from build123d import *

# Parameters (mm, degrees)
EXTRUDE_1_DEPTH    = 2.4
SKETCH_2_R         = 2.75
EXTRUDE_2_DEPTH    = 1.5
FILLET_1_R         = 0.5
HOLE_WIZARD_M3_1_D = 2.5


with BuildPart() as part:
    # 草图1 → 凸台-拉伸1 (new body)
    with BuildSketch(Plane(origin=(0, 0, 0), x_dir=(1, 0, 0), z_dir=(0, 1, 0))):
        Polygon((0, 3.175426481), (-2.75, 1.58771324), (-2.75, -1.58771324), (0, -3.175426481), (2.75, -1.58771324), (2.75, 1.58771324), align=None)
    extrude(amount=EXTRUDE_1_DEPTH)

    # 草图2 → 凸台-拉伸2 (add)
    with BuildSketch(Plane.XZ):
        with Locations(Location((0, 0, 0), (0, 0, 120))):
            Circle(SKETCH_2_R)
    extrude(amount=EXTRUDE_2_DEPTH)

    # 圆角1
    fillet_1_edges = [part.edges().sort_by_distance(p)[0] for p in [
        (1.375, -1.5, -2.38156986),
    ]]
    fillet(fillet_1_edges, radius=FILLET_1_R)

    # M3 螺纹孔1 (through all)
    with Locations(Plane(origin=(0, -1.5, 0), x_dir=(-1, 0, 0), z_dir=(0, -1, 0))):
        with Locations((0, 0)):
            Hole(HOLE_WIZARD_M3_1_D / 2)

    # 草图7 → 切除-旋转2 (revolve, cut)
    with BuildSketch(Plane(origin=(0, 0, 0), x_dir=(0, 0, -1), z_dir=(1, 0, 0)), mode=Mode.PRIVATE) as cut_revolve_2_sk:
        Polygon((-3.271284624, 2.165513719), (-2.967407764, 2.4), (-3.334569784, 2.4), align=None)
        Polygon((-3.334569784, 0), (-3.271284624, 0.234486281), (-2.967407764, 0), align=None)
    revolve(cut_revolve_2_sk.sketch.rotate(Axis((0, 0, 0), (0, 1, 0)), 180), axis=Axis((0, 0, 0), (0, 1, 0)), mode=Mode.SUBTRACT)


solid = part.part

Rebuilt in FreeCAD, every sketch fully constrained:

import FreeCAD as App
import Part
import Sketcher

V = App.Vector
Q = App.Units.Quantity


def edges_at(feature, points):
    """Names of the edges that pass closest to the given points."""
    edges = feature.Shape.Edges
    near = lambda p: min(range(len(edges)), key=lambda i: edges[i].distToShape(Part.Vertex(*p))[0])
    return sorted({f"Edge{near(p) + 1}" for p in points})

doc = App.newDocument("Part")
body = doc.addObject("PartDesign::Body", "Body")

sketch1 = doc.addObject("Sketcher::SketchObject", "Sketch")
body.addObject(sketch1)
sketch1.AttachmentSupport = (doc.XZ_Plane, [""])
sketch1.MapMode = "FlatFace"
sketch1.addGeometry([
    Part.LineSegment(V(0, -3.2, 0), V(-2.8, -1.6, 0)),
    Part.LineSegment(V(-2.8, -1.6, 0), V(-2.8, 1.6, 0)),
    Part.LineSegment(V(-2.8, 1.6, 0), V(0, 3.2, 0)),
    Part.LineSegment(V(0, 3.2, 0), V(2.8, 1.6, 0)),
    Part.LineSegment(V(2.8, 1.6, 0), V(2.8, -1.6, 0)),
    Part.LineSegment(V(2.8, -1.6, 0), V(0, -3.2, 0)),
], False)
sketch1.addConstraint([
    Sketcher.Constraint("Coincident", 0, 2, 1, 1),
    Sketcher.Constraint("Coincident", 1, 2, 2, 1),
    Sketcher.Constraint("Coincident", 2, 2, 3, 1),
    Sketcher.Constraint("Coincident", 3, 2, 4, 1),
    Sketcher.Constraint("Coincident", 4, 2, 5, 1),
    Sketcher.Constraint("Coincident", 5, 2, 0, 1),
    Sketcher.Constraint("Vertical", 1),
    Sketcher.Constraint("Vertical", 4),
    Sketcher.Constraint("Symmetric", 0, 2, 3, 2, -1, 1),
    Sketcher.Constraint("Symmetric", 2, 2, 5, 2, -1, 1),
    Sketcher.Constraint("PointOnObject", 2, 2, -2),
    Sketcher.Constraint("Parallel", 2, 5),
    Sketcher.Constraint("Horizontal", 1, 2, 3, 2),
    Sketcher.Constraint("Angle", 0, Q("150 deg")),
    Sketcher.Constraint("DistanceX", 1, 2, 3, 2, 5.5),
    Sketcher.Constraint("DistanceY", 1, 1, 1, 2, 3.175426),
])
pad1 = doc.addObject("PartDesign::Pad", "Pad")
body.addObject(pad1)
pad1.Profile = sketch1
pad1.Length = 2.4
pad1.Reversed = True

sketch2 = doc.addObject("Sketcher::SketchObject", "Sketch001")
body.addObject(sketch2)
sketch2.AttachmentSupport = (doc.XZ_Plane, [""])
sketch2.MapMode = "FlatFace"
sketch2.addGeometry(Part.Circle(V(0, 0, 0), V(0, 0, 1), 2.8), False)
sketch2.addConstraint([
    Sketcher.Constraint("Coincident", 0, 3, -1, 1),
    Sketcher.Constraint("Diameter", 0, 5.5),
])
pad2 = doc.addObject("PartDesign::Pad", "Pad001")
body.addObject(pad2)
pad2.Profile = sketch2
pad2.Length = 1.5
doc.recompute()

fillet = doc.addObject("PartDesign::Fillet", "Fillet")
body.addObject(fillet)
fillet.Base = (pad2, edges_at(pad2, [(1.375, -1.5, -2.382)]))
fillet.Radius = 0.5

sketch3 = doc.addObject("Sketcher::SketchObject", "Sketch002")
body.addObject(sketch3)
sketch3.AttachmentSupport = (doc.XZ_Plane, [""])
sketch3.MapMode = "FlatFace"
sketch3.AttachmentOffset = App.Placement(V(0, 0, 1.5), App.Rotation())
sketch3.addGeometry(Part.Circle(V(0, 0, 0), V(0, 0, 1), 1.2), False)
sketch3.addConstraint([
    Sketcher.Constraint("Coincident", 0, 3, -1, 1),
    Sketcher.Constraint("Diameter", 0, 2.5),
])
doc.recompute()
hole = doc.addObject("PartDesign::Hole", "Hole")
body.addObject(hole)
hole.Profile = sketch3
hole.ThreadType = "None"
hole.Diameter = 2.5
hole.DepthType = "ThroughAll"

sketch4 = doc.addObject("Sketcher::SketchObject", "Sketch003")
body.addObject(sketch4)
sketch4.AttachmentSupport = (doc.YZ_Plane, [""])
sketch4.MapMode = "FlatFace"
sketch4.addGeometry([
    Part.LineSegment(V(2.17, 3.27, 0), V(2.4, 2.97, 0)),
    Part.LineSegment(V(2.4, 2.97, 0), V(2.4, 3.33, 0)),
    Part.LineSegment(V(2.4, 3.33, 0), V(2.17, 3.27, 0)),
    Part.LineSegment(V(0.23, 3.27, 0), V(0, 3.33, 0)),
    Part.LineSegment(V(0, 3.33, 0), V(0, 2.97, 0)),
    Part.LineSegment(V(0, 2.97, 0), V(0.23, 3.27, 0)),
], False)
sketch4.addConstraint([
    Sketcher.Constraint("Coincident", 0, 2, 1, 1),
    Sketcher.Constraint("Coincident", 1, 2, 2, 1),
    Sketcher.Constraint("Coincident", 2, 2, 0, 1),
    Sketcher.Constraint("Coincident", 3, 2, 4, 1),
    Sketcher.Constraint("Coincident", 4, 2, 5, 1),
    Sketcher.Constraint("Coincident", 5, 2, 3, 1),
    Sketcher.Constraint("Vertical", 1),
    Sketcher.Constraint("Vertical", 4),
    Sketcher.Constraint("PointOnObject", 3, 2, -2),
    Sketcher.Constraint("Horizontal", 1, 2, 3, 2),
    Sketcher.Constraint("Horizontal", 0, 2, 4, 2),
    Sketcher.Constraint("Horizontal", 2, 2, 5, 2),
    Sketcher.Constraint("Equal", 2, 3),
    Sketcher.Constraint("DistanceX", -1, 1, 0, 2, 2.4),
    Sketcher.Constraint("Distance", 0, 0.383829),
    Sketcher.Constraint("DistanceY", 1, 1, 1, 2, 0.367162),
    Sketcher.Constraint("DistanceY", -1, 1, 1, 2, 3.33457),
    Sketcher.Constraint("Distance", 2, 0.242876),
])
groove = doc.addObject("PartDesign::Groove", "Groove")
body.addObject(groove)
groove.Profile = sketch4
groove.ReferenceAxis = (sketch4, ["H_Axis"])
groove.Angle = 360

doc.recompute()
